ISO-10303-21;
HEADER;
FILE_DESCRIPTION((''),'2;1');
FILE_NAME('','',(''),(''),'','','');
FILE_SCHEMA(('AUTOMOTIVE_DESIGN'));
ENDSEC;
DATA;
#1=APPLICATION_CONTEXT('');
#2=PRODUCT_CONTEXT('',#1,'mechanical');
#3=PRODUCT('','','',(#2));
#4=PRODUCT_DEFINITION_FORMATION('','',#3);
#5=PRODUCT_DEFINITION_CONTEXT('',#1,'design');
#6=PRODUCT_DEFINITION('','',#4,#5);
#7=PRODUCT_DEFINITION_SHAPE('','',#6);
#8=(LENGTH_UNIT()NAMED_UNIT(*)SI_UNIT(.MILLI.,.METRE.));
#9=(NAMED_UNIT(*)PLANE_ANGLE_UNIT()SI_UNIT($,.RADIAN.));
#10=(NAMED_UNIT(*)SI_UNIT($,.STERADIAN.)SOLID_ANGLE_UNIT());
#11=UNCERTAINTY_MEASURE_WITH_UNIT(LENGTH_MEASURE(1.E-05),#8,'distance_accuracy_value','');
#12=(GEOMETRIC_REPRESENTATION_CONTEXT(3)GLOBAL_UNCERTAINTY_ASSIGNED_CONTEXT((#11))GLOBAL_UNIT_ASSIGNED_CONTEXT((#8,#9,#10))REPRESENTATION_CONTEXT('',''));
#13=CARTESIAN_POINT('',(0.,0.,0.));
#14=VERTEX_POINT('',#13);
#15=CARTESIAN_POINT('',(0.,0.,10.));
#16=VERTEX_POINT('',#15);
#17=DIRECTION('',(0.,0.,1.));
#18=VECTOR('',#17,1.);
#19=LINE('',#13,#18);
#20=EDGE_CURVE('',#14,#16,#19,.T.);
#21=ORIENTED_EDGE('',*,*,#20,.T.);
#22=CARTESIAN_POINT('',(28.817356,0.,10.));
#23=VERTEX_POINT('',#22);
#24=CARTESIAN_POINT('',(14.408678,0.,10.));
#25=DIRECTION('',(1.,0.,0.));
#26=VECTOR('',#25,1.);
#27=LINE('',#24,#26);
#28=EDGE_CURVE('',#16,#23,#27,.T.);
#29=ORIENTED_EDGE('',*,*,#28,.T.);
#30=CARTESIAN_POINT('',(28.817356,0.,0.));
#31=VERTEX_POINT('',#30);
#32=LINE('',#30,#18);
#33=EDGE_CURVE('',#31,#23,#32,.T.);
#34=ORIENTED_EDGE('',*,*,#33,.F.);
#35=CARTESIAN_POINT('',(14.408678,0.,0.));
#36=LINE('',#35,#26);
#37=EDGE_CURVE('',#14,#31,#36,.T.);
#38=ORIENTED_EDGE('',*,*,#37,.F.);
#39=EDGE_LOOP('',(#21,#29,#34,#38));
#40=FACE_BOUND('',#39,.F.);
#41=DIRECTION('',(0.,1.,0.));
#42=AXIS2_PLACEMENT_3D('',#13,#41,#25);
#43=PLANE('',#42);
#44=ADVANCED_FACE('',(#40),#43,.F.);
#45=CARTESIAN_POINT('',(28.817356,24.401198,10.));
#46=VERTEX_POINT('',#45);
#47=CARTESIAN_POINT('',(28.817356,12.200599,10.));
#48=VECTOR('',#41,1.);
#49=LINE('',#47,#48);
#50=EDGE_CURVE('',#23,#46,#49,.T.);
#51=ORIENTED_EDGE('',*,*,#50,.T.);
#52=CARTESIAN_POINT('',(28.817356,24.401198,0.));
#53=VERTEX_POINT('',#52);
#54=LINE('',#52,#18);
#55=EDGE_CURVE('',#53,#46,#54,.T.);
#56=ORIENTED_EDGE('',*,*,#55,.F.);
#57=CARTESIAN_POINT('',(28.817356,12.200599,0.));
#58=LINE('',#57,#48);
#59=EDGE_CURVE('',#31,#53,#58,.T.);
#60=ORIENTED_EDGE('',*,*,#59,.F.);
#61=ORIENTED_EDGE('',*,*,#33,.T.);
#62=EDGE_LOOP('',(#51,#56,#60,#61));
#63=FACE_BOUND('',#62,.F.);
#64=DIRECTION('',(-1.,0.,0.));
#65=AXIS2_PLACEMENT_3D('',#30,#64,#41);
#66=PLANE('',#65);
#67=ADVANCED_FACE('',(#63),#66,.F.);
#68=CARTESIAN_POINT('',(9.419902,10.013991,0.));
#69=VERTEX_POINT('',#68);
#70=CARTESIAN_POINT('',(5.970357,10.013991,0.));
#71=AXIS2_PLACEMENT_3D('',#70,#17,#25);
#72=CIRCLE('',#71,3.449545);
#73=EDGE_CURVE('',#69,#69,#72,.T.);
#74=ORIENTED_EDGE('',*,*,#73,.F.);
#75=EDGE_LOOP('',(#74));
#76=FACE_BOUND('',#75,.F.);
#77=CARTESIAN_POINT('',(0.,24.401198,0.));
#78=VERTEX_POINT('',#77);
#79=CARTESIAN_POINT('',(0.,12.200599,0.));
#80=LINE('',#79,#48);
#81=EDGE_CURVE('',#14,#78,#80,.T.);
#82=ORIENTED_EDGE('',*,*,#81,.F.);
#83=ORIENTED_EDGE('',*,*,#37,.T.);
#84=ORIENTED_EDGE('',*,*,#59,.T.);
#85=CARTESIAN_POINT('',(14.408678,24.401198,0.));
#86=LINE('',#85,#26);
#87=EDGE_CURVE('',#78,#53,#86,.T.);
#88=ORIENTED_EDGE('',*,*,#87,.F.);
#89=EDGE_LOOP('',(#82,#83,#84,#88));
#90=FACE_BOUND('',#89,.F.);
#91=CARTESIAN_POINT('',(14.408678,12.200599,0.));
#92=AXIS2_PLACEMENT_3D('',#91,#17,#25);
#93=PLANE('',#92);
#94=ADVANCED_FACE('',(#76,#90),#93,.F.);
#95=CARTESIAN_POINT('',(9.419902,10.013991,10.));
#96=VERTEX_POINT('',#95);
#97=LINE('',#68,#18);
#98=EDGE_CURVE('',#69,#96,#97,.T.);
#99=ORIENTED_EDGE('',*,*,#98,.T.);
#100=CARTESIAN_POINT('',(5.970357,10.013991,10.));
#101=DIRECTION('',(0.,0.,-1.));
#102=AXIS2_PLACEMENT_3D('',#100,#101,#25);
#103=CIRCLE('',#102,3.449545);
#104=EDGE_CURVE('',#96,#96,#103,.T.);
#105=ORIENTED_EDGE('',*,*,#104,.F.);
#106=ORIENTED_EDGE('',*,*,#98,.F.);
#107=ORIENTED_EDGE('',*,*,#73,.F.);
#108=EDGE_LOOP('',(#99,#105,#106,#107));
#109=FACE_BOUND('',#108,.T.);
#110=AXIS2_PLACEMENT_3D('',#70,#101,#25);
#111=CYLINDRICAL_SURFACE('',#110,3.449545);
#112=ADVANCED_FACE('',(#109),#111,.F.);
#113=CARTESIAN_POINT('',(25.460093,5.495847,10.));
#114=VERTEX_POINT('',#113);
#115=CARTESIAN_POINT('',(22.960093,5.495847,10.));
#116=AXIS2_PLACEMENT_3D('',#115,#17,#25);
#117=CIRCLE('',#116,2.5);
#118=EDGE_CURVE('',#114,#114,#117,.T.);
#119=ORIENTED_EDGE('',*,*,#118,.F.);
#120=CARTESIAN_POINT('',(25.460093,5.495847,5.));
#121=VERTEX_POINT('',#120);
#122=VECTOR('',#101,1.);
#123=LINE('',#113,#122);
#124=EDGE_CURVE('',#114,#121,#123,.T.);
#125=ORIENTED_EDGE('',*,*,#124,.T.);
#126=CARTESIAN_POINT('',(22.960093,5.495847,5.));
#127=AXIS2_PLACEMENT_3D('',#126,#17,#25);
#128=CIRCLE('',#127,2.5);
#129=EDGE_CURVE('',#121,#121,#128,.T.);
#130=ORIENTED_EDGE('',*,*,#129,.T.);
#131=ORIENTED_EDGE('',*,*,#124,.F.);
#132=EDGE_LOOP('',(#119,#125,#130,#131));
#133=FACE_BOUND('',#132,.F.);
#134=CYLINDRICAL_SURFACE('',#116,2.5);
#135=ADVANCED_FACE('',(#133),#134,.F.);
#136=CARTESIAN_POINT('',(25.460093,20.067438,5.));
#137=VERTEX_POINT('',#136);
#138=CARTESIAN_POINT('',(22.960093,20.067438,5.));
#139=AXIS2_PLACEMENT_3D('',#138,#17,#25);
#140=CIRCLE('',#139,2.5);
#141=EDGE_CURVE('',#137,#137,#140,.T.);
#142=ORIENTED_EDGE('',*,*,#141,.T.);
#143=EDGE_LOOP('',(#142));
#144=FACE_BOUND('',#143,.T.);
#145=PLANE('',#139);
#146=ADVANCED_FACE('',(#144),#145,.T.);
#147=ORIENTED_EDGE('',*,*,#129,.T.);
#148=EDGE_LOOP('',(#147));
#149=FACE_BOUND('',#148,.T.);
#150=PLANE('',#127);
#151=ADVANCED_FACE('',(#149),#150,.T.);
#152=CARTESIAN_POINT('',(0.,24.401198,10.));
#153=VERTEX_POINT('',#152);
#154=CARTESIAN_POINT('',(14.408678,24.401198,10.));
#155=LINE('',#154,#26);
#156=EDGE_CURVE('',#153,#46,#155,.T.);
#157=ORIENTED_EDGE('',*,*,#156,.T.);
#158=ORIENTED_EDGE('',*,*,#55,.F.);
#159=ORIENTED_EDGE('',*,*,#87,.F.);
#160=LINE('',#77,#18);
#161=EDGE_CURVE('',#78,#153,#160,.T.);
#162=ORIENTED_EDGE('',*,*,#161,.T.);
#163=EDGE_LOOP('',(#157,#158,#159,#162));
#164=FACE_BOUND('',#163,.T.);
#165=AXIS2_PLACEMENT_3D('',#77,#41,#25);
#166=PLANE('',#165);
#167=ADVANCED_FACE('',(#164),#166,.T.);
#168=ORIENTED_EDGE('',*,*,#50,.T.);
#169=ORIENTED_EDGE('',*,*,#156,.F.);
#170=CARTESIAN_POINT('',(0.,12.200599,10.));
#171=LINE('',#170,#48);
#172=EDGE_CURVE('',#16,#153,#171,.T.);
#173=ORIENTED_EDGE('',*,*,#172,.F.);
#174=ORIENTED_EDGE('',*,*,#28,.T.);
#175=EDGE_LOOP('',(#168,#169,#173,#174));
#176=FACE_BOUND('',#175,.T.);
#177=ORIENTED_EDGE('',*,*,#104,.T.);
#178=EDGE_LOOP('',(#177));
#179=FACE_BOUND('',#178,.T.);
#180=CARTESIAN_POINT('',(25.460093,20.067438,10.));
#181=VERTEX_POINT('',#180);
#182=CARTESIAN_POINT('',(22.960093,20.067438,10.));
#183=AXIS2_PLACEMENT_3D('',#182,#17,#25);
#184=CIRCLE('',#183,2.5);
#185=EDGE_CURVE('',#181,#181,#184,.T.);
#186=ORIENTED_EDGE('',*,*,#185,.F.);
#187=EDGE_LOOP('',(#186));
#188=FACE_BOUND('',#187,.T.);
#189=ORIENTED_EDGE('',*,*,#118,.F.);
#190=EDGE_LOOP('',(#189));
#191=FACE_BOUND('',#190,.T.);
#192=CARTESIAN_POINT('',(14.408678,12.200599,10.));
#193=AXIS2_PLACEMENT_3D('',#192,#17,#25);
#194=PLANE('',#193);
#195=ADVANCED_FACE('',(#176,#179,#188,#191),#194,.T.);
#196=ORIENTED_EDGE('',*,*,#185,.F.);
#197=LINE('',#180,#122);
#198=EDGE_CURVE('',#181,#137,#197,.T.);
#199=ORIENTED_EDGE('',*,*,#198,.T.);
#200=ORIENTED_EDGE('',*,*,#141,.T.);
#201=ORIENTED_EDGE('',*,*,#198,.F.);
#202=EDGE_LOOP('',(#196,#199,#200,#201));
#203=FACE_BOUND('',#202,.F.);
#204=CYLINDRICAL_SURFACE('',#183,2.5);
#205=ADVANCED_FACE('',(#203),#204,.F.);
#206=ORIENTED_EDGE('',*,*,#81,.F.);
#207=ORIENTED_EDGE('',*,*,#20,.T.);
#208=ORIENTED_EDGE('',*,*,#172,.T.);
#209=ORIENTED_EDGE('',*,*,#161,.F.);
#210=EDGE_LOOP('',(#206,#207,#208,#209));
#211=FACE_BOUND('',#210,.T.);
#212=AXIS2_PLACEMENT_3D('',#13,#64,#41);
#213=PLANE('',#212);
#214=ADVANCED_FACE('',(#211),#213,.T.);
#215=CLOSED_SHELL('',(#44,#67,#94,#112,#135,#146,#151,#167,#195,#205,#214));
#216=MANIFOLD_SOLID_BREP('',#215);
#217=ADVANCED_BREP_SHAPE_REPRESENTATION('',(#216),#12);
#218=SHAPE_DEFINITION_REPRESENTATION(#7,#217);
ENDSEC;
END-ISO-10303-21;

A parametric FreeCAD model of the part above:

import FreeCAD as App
import Part
import Sketcher
Q = App.Units.Quantity

doc = App.newDocument("Part")
body = doc.addObject("PartDesign::Body", "Body")

# Sketch on XY plane
sketch1 = body.newObject("Sketcher::SketchObject", "Sketch")
sketch1.AttachmentSupport = (doc.getObject("XY_Plane"), [""])
sketch1.MapMode = "FlatFace"
sketch1.addGeometry([
    Part.LineSegment(App.Vector(0, 24, 0), App.Vector(0, 0, 0)),
    Part.LineSegment(App.Vector(0, 0, 0), App.Vector(29, 0, 0)),
    Part.LineSegment(App.Vector(29, 0, 0), App.Vector(29, 24, 0)),
    Part.LineSegment(App.Vector(29, 24, 0), App.Vector(0, 24, 0)),
], False)
sketch1.addConstraint([
    Sketcher.Constraint("Coincident", 0, 2, 1, 1),
    Sketcher.Constraint("Coincident", 1, 2, 2, 1),
    Sketcher.Constraint("Coincident", 2, 2, 3, 1),
    Sketcher.Constraint("Coincident", 3, 2, 0, 1),
    Sketcher.Constraint("Vertical", 0),
    Sketcher.Constraint("Horizontal", 1),
    Sketcher.Constraint("Vertical", 2),
    Sketcher.Constraint("Horizontal", 3),
    Sketcher.Constraint("Coincident", 0, 2, -1, 1),
    Sketcher.Constraint("DistanceY", 0, 2, 0, 1, Q("24.401199 mm")),
    Sketcher.Constraint("DistanceX", 1, 1, 1, 2, Q("28.817356 mm")),
])
pad1 = body.newObject("PartDesign::Pad", "Pad")
pad1.Profile = sketch1
pad1.Length = 10

# Sketch on XY plane
sketch2 = body.newObject("Sketcher::SketchObject", "Sketch001")
sketch2.AttachmentSupport = (doc.getObject("XY_Plane"), [""])
sketch2.MapMode = "FlatFace"
sketch2.addGeometry(Part.Circle(App.Vector(6, 10, 0), App.Vector(0, 0, 1), 3.4), False)
sketch2.addConstraint([
    Sketcher.Constraint("Diameter", 0, Q("6.89909 mm")),
    Sketcher.Constraint("DistanceY", -1, 1, 0, 3, Q("10.013991 mm")),
    Sketcher.Constraint("DistanceX", -1, 1, 0, 3, Q("5.970357 mm")),
])
pocket1 = body.newObject("PartDesign::Pocket", "Pocket")
pocket1.Profile = sketch2
pocket1.Type = "ThroughAll"
pocket1.Reversed = True

# Sketch on XY plane
sketch3 = body.newObject("Sketcher::SketchObject", "Sketch002")
sketch3.AttachmentSupport = (doc.getObject("XY_Plane"), [""])
sketch3.MapMode = "FlatFace"
sketch3.AttachmentOffset = App.Placement(App.Vector(0, 0, 10), App.Rotation())
sketch3.addGeometry([
    Part.Circle(App.Vector(23, 5.5, 0), App.Vector(0, 0, 1), 2.5),
    Part.Circle(App.Vector(23, 20.1, 0), App.Vector(0, 0, 1), 2.5),
], False)
sketch3.addConstraint([
    Sketcher.Constraint("Equal", 0, 1),
    Sketcher.Constraint("Vertical", 0, 3, 1, 3),
    Sketcher.Constraint("Diameter", 0, Q("5 mm")),
    Sketcher.Constraint("DistanceY", 0, 3, 1, 3, Q("14.571591 mm")),
    Sketcher.Constraint("DistanceX", -1, 1, 0, 3, Q("22.960093 mm")),
    Sketcher.Constraint("DistanceY", -1, 1, 0, 3, Q("5.495847 mm")),
])
pocket2 = body.newObject("PartDesign::Pocket", "Pocket001")
pocket2.Profile = sketch3
pocket2.Length = 5

doc.recompute()
